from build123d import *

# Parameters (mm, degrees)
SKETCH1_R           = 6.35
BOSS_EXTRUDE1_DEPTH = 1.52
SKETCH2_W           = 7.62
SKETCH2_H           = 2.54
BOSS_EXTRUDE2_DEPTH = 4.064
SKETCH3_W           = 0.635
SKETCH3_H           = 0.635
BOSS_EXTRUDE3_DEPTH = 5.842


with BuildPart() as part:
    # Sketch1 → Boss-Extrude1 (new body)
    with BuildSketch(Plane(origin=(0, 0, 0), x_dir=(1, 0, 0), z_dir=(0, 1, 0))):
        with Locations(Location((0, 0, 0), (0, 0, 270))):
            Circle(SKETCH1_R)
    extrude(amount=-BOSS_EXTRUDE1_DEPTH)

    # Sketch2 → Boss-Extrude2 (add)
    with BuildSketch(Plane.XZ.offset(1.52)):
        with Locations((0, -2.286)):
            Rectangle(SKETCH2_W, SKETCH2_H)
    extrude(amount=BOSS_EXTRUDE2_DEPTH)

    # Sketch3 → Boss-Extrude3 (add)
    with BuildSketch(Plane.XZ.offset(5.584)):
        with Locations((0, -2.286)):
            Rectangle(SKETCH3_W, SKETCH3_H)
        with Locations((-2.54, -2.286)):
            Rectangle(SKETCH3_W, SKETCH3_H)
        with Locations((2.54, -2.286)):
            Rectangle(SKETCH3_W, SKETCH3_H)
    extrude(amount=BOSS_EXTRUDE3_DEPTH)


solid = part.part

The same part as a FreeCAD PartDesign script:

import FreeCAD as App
import Part
import Sketcher

V = App.Vector
Q = App.Units.Quantity


def add_polygon(sketch, points):
    """Adds a closed chain of lines whose ends are joined by coincident constraints."""
    first, n = sketch.GeometryCount, len(points)
    for a, b in zip(points, points[1:] + points[:1]):
        sketch.addGeometry(Part.LineSegment(App.Vector(*a, 0), App.Vector(*b, 0)), False)
    for i in range(n):
        sketch.addConstraint(Sketcher.Constraint("Coincident", first + i, 2, first + (i + 1) % n, 1))

doc = App.newDocument("Part")
params = doc.addObject("Spreadsheet::Sheet", "Params")
for row, (alias, value) in enumerate([
    ("sketch1_diameter", "0.5 in"),
    ("pad1_length", "1.52 mm"),
    ("sketch2_width", "0.3 in"),
    ("sketch2_height", "0.1 in"),
    ("pad2_length", "0.16 in"),
    ("sketch3_width", "0.025 in"),
    ("pad3_length", "0.23 in"),
], start=1):
    params.set(f"A{row}", alias)
    params.set(f"B{row}", "=" + value)
    params.setAlias(f"B{row}", alias)

body = doc.addObject("PartDesign::Body", "Body")

sketch1 = body.newObject("Sketcher::SketchObject", "Sketch")
sketch1.AttachmentSupport = (doc.getObject("XZ_Plane"), [""])
sketch1.MapMode = "FlatFace"
sketch1.addGeometry(Part.Circle(V(0, 0, 0), V(0, 0, 1), 6), False)
sketch1.addConstraint(Sketcher.Constraint("Coincident", 0, 3, -1, 1))
sketch1.addConstraint(Sketcher.Constraint("Diameter", 0, Q("0.5 in")))
sketch1.setExpression("Constraints[1]", "Params.sketch1_diameter")
pad1 = body.newObject("PartDesign::Pad", "Pad")
pad1.Profile = sketch1
pad1.setExpression("Length", "Params.pad1_length")

sketch2 = body.newObject("Sketcher::SketchObject", "Sketch001")
sketch2.AttachmentSupport = (doc.getObject("XZ_Plane"), [""])
sketch2.MapMode = "FlatFace"
sketch2.AttachmentOffset = App.Placement(V(0, 0, 1.52), App.Rotation())
add_polygon(sketch2, [(-3.8, -1), (-3.8, -3.6), (3.8, -3.6), (3.8, -1)])
sketch2.addConstraint(Sketcher.Constraint("Vertical", 0))
sketch2.addConstraint(Sketcher.Constraint("Horizontal", 1))
sketch2.addConstraint(Sketcher.Constraint("Vertical", 2))
sketch2.addConstraint(Sketcher.Constraint("Horizontal", 3))
sketch2.addConstraint(Sketcher.Constraint("DistanceX", 1, 1, 1, 2, Q("0.3 in")))
sketch2.addConstraint(Sketcher.Constraint("DistanceY", 0, 2, 0, 1, Q("0.1 in")))
sketch2.addConstraint(Sketcher.Constraint("DistanceX", 0, 2, -1, 1, Q("0.15 in")))
sketch2.addConstraint(Sketcher.Constraint("DistanceY", 0, 2, -1, 1, Q("0.14 in")))
sketch2.setExpression("Constraints[8]", "Params.sketch2_width")
sketch2.setExpression("Constraints[9]", "Params.sketch2_height")
pad2 = body.newObject("PartDesign::Pad", "Pad001")
pad2.Profile = sketch2
pad2.setExpression("Length", "Params.pad2_length")

sketch3 = body.newObject("Sketcher::SketchObject", "Sketch002")
sketch3.AttachmentSupport = (doc.getObject("XZ_Plane"), [""])
sketch3.MapMode = "FlatFace"
sketch3.AttachmentOffset = App.Placement(V(0, 0, 5.584), App.Rotation())
add_polygon(sketch3, [(-0.3, -2), (-0.3, -2.6), (0.3, -2.6), (0.3, -2)])
add_polygon(sketch3, [(-2.9, -2), (-2.9, -2.6), (-2.2, -2.6), (-2.2, -2)])
add_polygon(sketch3, [(2.2, -2), (2.2, -2.6), (2.9, -2.6), (2.9, -2)])
sketch3.addConstraint(Sketcher.Constraint("Vertical", 0))
sketch3.addConstraint(Sketcher.Constraint("Horizontal", 1))
sketch3.addConstraint(Sketcher.Constraint("Vertical", 2))
sketch3.addConstraint(Sketcher.Constraint("Horizontal", 3))
sketch3.addConstraint(Sketcher.Constraint("Vertical", 4))
sketch3.addConstraint(Sketcher.Constraint("Horizontal", 5))
sketch3.addConstraint(Sketcher.Constraint("Vertical", 6))
sketch3.addConstraint(Sketcher.Constraint("Horizontal", 7))
sketch3.addConstraint(Sketcher.Constraint("Vertical", 8))
sketch3.addConstraint(Sketcher.Constraint("Horizontal", 9))
sketch3.addConstraint(Sketcher.Constraint("Vertical", 10))
sketch3.addConstraint(Sketcher.Constraint("Horizontal", 11))
sketch3.addConstraint(Sketcher.Constraint("Symmetric", 5, 2, 8, 2, -2))
sketch3.addConstraint(Sketcher.Constraint("Symmetric", 7, 2, 10, 2, -2))
sketch3.addConstraint(Sketcher.Constraint("Horizontal", 1, 2, 4, 2))
sketch3.addConstraint(Sketcher.Constraint("Horizontal", 3, 2, 6, 2))
sketch3.addConstraint(Sketcher.Constraint("Equal", 3, 5))
sketch3.addConstraint(Sketcher.Constraint("Equal", 11, 0))
sketch3.addConstraint(Sketcher.Constraint("DistanceX", 4, 2, 0, 2, Q("0.1 in")))
sketch3.addConstraint(Sketcher.Constraint("DistanceX", 0, 2, 8, 2, Q("0.1 in")))
sketch3.addConstraint(Sketcher.Constraint("DistanceX", 1, 1, 1, 2, Q("0.025 in")))
sketch3.addConstraint(Sketcher.Constraint("DistanceY", 0, 2, -1, 1, Q("0.1025 in")))
sketch3.setExpression("Constraints[32]", "Params.sketch3_width")
pad3 = body.newObject("PartDesign::Pad", "Pad002")
pad3.Profile = sketch3
pad3.setExpression("Length", "Params.pad3_length")

doc.recompute()
